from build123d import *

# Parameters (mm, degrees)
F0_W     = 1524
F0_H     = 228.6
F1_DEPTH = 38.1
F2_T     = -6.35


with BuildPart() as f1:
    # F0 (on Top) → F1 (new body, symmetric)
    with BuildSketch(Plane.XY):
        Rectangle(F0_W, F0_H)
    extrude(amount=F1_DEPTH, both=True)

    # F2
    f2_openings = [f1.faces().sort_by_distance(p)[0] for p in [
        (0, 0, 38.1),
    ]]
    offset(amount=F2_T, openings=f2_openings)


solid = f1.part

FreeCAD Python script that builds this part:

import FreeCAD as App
import Part
import Sketcher
from FreeCAD import Vector
Q = App.Units.Quantity


def faces_at(feature, points):
    """Names of the faces that lie closest to the given points."""
    faces = feature.Shape.Faces
    near = lambda p: min(range(len(faces)), key=lambda i: faces[i].distToShape(Part.Vertex(*p))[0])
    return sorted({f"Face{near(p) + 1}" for p in points})


def add_polygon(sketch, points):
    """Adds a closed chain of lines whose ends are joined by coincident constraints."""
    first, n = sketch.GeometryCount, len(points)
    for a, b in zip(points, points[1:] + points[:1]):
        sketch.addGeometry(Part.LineSegment(App.Vector(*a, 0), App.Vector(*b, 0)), False)
    for i in range(n):
        sketch.addConstraint(Sketcher.Constraint("Coincident", first + i, 2, first + (i + 1) % n, 1))

doc = App.newDocument("Part")
body = doc.addObject("PartDesign::Body", "Body")

# Sketch on XY plane
sketch1 = body.newObject("Sketcher::SketchObject", "Sketch")
sketch1.AttachmentSupport = (doc.getObject("XY_Plane"), [""])
sketch1.MapMode = "FlatFace"
add_polygon(sketch1, [(-762, 114), (-762, -114), (762, -114), (762, 114)])  # lines 0-3
sketch1.addConstraint(Sketcher.Constraint("Vertical", 0))
sketch1.addConstraint(Sketcher.Constraint("Horizontal", 1))
sketch1.addConstraint(Sketcher.Constraint("Vertical", 2))
sketch1.addConstraint(Sketcher.Constraint("Horizontal", 3))
sketch1.addConstraint(Sketcher.Constraint("Symmetric", 0, 2, 2, 2, -1, 1))
sketch1.addConstraint(Sketcher.Constraint("DistanceX", 1, 1, 1, 2, Q("60 in")))
sketch1.addConstraint(Sketcher.Constraint("DistanceY", 0, 2, 0, 1, Q("9 in")))
pad1 = body.newObject("PartDesign::Pad", "Pad")
pad1.Profile = sketch1
pad1.Length = Q("3 in")
pad1.Midplane = True
doc.recompute()

thickness = body.newObject("PartDesign::Thickness", "Thickness")
thickness.Base = (pad1, faces_at(pad1, [(0, 0, 38.1)]))
thickness.Value = Q("0.25 in")
thickness.Reversed = True
thickness.Join = "Arc"

doc.recompute()
